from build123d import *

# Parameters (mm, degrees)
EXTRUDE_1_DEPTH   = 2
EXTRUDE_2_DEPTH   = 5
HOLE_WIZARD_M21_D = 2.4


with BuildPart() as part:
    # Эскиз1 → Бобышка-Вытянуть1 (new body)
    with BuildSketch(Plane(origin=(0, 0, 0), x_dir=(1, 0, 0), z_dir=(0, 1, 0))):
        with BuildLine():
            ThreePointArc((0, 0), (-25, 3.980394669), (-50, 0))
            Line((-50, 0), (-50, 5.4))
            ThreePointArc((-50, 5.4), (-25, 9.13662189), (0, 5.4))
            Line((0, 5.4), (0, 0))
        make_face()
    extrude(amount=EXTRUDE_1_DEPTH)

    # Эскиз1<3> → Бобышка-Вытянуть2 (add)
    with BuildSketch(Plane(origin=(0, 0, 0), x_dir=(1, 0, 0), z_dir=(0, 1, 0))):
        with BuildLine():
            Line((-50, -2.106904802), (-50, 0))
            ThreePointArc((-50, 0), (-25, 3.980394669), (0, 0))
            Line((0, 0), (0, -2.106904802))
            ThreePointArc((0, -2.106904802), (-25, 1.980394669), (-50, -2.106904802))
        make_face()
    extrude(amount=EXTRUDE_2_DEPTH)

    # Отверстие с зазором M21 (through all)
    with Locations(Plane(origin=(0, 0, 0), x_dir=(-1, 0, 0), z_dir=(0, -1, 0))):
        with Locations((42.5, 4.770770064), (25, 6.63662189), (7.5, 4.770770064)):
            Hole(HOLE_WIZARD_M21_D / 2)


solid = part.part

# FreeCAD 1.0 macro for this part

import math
import FreeCAD as App
import Part
import Sketcher

V = App.Vector
Q = App.Units.Quantity

doc = App.newDocument("Part")
body = doc.addObject("PartDesign::Body", "Body")

# Sketch on XZ plane
sketch1 = body.newObject("Sketcher::SketchObject", "Sketch")
sketch1.AttachmentSupport = (doc.getObject("XZ_Plane"), [""])
sketch1.MapMode = "FlatFace"
sketch1.addGeometry([
    Part.ArcOfCircle(Part.Circle(V(-25, 77, 0), V(0, 0, 1), 81), math.radians(-108), math.radians(-72)),
    Part.LineSegment(V(0, 0, 0), V(0, -5, 0)),
    Part.ArcOfCircle(Part.Circle(V(-25, 76, 0), V(0, 0, 1), 85), math.radians(-107), math.radians(-73)),
    Part.LineSegment(V(-50, -5, 0), V(-50, 0, 0)),
], False)
sketch1.addConstraint([
    Sketcher.Constraint("Coincident", 0, 2, 1, 1),
    Sketcher.Constraint("Coincident", 1, 2, 2, 2),
    Sketcher.Constraint("Coincident", 2, 1, 3, 1),
    Sketcher.Constraint("Coincident", 3, 2, 0, 1),
    Sketcher.Constraint("Vertical", 1),
    Sketcher.Constraint("Vertical", 3),
    Sketcher.Constraint("Coincident", 0, 2, -1, 1),
    Sketcher.Constraint("PointOnObject", 3, 2, -1),
    Sketcher.Constraint("Horizontal", 1, 2, 2, 1),
    Sketcher.Constraint("Radius", 0, Q("80.5 mm")),
    Sketcher.Constraint("Radius", 2, Q("85.5 mm")),
    Sketcher.Constraint("DistanceY", 1, 2, 1, 1, Q("5.4 mm")),
    Sketcher.Constraint("DistanceX", 0, 3, -1, 1, Q("25 mm")),
])
pad1 = body.newObject("PartDesign::Pad", "Pad")
pad1.Profile = sketch1
pad1.Length = 2
pad1.Reversed = True

# Sketch on XZ plane
sketch2 = body.newObject("Sketcher::SketchObject", "Sketch001")
sketch2.AttachmentSupport = (doc.getObject("XZ_Plane"), [""])
sketch2.MapMode = "FlatFace"
sketch2.addGeometry([
    Part.LineSegment(V(-50, 0, 0), V(-50, 2.1, 0)),
    Part.ArcOfCircle(Part.Circle(V(-25, 76.5, 0), V(0, 0, 1), 78.5), math.radians(-109), math.radians(-71)),
    Part.LineSegment(V(0, 2.1, 0), V(0, 0, 0)),
    Part.ArcOfCircle(Part.Circle(V(-25, 76.5, 0), V(0, 0, 1), 80.5), math.radians(-108), math.radians(-72)),
], False)
sketch2.addConstraint([
    Sketcher.Constraint("Coincident", 0, 2, 1, 1),
    Sketcher.Constraint("Coincident", 1, 2, 2, 1),
    Sketcher.Constraint("Coincident", 2, 2, 3, 2),
    Sketcher.Constraint("Coincident", 3, 1, 0, 1),
    Sketcher.Constraint("Vertical", 0),
    Sketcher.Constraint("Vertical", 2),
    Sketcher.Constraint("Coincident", 2, 2, -1, 1),
    Sketcher.Constraint("Coincident", 3, 3, 1, 3),
    Sketcher.Constraint("PointOnObject", 3, 1, -1),
    Sketcher.Constraint("Radius", 1, Q("78.5 mm")),
    Sketcher.Constraint("Radius", 3, Q("80.5 mm")),
    Sketcher.Constraint("DistanceX", 1, 3, -1, 1, Q("25 mm")),
])
pad2 = body.newObject("PartDesign::Pad", "Pad001")
pad2.Profile = sketch2
pad2.Length = 5
pad2.Reversed = True

# Sketch on XZ plane
sketch3 = body.newObject("Sketcher::SketchObject", "Sketch002")
sketch3.AttachmentSupport = (doc.getObject("XZ_Plane"), [""])
sketch3.MapMode = "FlatFace"
sketch3.addGeometry([
    Part.Circle(V(-42.5, -4.8, 0), V(0, 0, 1), 1.2),
    Part.Circle(V(-25, -6.6, 0), V(0, 0, 1), 1.2),
    Part.Circle(V(-7.5, -4.8, 0), V(0, 0, 1), 1.2),
], False)
sketch3.addConstraint([
    Sketcher.Constraint("Equal", 0, 1),
    Sketcher.Constraint("Equal", 1, 2),
    Sketcher.Constraint("Horizontal", 0, 3, 2, 3),
    Sketcher.Constraint("Diameter", 0, Q("2.4 mm")),
    Sketcher.Constraint("DistanceX", 1, 3, -1, 1, Q("25 mm")),
    Sketcher.Constraint("DistanceX", 0, 3, 2, 3, Q("35 mm")),
    Sketcher.Constraint("DistanceX", 0, 3, -1, 1, Q("42.5 mm")),
    Sketcher.Constraint("DistanceY", 0, 3, -1, 1, Q("4.77077 mm")),
    Sketcher.Constraint("DistanceY", 1, 3, -1, 1, Q("6.636622 mm")),
])
doc.recompute()
hole = body.newObject("PartDesign::Hole", "Hole")
hole.Profile = sketch3
hole.ThreadType = "None"
hole.Diameter = 2.4
hole.DepthType = "ThroughAll"

doc.recompute()
